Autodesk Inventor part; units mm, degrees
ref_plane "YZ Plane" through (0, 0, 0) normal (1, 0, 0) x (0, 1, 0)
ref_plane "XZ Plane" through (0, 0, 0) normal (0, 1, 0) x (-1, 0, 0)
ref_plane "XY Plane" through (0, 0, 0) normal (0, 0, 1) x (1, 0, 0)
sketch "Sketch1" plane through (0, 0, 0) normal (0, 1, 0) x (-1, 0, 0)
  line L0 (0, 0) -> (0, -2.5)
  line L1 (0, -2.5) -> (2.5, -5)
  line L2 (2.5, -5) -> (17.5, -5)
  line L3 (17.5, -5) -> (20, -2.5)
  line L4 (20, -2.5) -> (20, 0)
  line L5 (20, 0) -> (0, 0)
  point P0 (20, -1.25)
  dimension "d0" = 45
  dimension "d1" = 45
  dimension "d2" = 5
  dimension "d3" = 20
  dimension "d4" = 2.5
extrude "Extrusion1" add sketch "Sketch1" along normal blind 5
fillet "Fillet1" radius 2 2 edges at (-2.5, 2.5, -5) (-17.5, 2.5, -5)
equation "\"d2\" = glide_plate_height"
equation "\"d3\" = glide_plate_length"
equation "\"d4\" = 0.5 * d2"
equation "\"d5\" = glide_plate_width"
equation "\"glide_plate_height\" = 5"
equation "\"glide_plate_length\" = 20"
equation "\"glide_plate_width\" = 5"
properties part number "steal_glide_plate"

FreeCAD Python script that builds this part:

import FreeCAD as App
import Part
import Sketcher

V = App.Vector


def edges_at(feature, points):
    """Names of the edges that pass closest to the given points."""
    edges = feature.Shape.Edges
    near = lambda p: min(range(len(edges)), key=lambda i: edges[i].distToShape(Part.Vertex(*p))[0])
    return sorted({f"Edge{near(p) + 1}" for p in points})

doc = App.newDocument("Part")
params = doc.addObject("Spreadsheet::Sheet", "Params")
for row, (alias, value) in enumerate([
    ("sketch1_width", "20 mm"),
    ("sketch1_height", "2.5 mm"),
    ("pad1_length", "5 mm"),
    ("fillet_radius", "2 mm"),
], start=1):
    params.set(f"A{row}", alias)
    params.set(f"B{row}", "=" + value)
    params.setAlias(f"B{row}", alias)

body = doc.addObject("PartDesign::Body", "Body")

sketch1 = body.newObject("Sketcher::SketchObject", "Sketch")
sketch1.AttachmentSupport = (doc.getObject("XZ_Plane"), [""])
sketch1.MapMode = "FlatFace"
sketch1.addGeometry([
    Part.LineSegment(V(-20, 0, 0), V(0, 0, 0)),
    Part.LineSegment(V(0, 0, 0), V(0, -2.5, 0)),
    Part.LineSegment(V(0, -2.5, 0), V(-2.5, -5, 0)),
    Part.LineSegment(V(-2.5, -5, 0), V(-17.5, -5, 0)),
    Part.LineSegment(V(-17.5, -5, 0), V(-20, -2.5, 0)),
    Part.LineSegment(V(-20, -2.5, 0), V(-20, 0, 0)),
], False)
sketch1.addConstraint([
    Sketcher.Constraint("Coincident", 0, 2, 1, 1),
    Sketcher.Constraint("Coincident", 1, 2, 2, 1),
    Sketcher.Constraint("Coincident", 2, 2, 3, 1),
    Sketcher.Constraint("Coincident", 3, 2, 4, 1),
    Sketcher.Constraint("Coincident", 4, 2, 5, 1),
    Sketcher.Constraint("Coincident", 5, 2, 0, 1),
    Sketcher.Constraint("Horizontal", 0),
    Sketcher.Constraint("Vertical", 1),
    Sketcher.Constraint("Horizontal", 3),
    Sketcher.Constraint("Vertical", 5),
    Sketcher.Constraint("Coincident", 0, 2, -1, 1),
    Sketcher.Constraint("Perpendicular", 2, 4),
    Sketcher.Constraint("Horizontal", 1, 2, 4, 2),
    Sketcher.Constraint("Equal", 2, 4),
    Sketcher.Constraint("DistanceX", 0, 1, 0, 2, 20.0),
    Sketcher.Constraint("DistanceY", 1, 2, 1, 1, 2.5),
    Sketcher.Constraint("DistanceY", 2, 2, -1, 1, 5.0),
])
sketch1.setExpression("Constraints[14]", "Params.sketch1_width")
sketch1.setExpression("Constraints[15]", "Params.sketch1_height")
pad1 = body.newObject("PartDesign::Pad", "Pad")
pad1.Profile = sketch1
pad1.setExpression("Length", "Params.pad1_length")
pad1.Reversed = True
doc.recompute()

fillet = body.newObject("PartDesign::Fillet", "Fillet")
fillet.Base = (pad1, edges_at(pad1, [(-2.5, 2.5, -5), (-17.5, 2.5, -5)]))
fillet.setExpression("Radius", "Params.fillet_radius")

doc.recompute()
